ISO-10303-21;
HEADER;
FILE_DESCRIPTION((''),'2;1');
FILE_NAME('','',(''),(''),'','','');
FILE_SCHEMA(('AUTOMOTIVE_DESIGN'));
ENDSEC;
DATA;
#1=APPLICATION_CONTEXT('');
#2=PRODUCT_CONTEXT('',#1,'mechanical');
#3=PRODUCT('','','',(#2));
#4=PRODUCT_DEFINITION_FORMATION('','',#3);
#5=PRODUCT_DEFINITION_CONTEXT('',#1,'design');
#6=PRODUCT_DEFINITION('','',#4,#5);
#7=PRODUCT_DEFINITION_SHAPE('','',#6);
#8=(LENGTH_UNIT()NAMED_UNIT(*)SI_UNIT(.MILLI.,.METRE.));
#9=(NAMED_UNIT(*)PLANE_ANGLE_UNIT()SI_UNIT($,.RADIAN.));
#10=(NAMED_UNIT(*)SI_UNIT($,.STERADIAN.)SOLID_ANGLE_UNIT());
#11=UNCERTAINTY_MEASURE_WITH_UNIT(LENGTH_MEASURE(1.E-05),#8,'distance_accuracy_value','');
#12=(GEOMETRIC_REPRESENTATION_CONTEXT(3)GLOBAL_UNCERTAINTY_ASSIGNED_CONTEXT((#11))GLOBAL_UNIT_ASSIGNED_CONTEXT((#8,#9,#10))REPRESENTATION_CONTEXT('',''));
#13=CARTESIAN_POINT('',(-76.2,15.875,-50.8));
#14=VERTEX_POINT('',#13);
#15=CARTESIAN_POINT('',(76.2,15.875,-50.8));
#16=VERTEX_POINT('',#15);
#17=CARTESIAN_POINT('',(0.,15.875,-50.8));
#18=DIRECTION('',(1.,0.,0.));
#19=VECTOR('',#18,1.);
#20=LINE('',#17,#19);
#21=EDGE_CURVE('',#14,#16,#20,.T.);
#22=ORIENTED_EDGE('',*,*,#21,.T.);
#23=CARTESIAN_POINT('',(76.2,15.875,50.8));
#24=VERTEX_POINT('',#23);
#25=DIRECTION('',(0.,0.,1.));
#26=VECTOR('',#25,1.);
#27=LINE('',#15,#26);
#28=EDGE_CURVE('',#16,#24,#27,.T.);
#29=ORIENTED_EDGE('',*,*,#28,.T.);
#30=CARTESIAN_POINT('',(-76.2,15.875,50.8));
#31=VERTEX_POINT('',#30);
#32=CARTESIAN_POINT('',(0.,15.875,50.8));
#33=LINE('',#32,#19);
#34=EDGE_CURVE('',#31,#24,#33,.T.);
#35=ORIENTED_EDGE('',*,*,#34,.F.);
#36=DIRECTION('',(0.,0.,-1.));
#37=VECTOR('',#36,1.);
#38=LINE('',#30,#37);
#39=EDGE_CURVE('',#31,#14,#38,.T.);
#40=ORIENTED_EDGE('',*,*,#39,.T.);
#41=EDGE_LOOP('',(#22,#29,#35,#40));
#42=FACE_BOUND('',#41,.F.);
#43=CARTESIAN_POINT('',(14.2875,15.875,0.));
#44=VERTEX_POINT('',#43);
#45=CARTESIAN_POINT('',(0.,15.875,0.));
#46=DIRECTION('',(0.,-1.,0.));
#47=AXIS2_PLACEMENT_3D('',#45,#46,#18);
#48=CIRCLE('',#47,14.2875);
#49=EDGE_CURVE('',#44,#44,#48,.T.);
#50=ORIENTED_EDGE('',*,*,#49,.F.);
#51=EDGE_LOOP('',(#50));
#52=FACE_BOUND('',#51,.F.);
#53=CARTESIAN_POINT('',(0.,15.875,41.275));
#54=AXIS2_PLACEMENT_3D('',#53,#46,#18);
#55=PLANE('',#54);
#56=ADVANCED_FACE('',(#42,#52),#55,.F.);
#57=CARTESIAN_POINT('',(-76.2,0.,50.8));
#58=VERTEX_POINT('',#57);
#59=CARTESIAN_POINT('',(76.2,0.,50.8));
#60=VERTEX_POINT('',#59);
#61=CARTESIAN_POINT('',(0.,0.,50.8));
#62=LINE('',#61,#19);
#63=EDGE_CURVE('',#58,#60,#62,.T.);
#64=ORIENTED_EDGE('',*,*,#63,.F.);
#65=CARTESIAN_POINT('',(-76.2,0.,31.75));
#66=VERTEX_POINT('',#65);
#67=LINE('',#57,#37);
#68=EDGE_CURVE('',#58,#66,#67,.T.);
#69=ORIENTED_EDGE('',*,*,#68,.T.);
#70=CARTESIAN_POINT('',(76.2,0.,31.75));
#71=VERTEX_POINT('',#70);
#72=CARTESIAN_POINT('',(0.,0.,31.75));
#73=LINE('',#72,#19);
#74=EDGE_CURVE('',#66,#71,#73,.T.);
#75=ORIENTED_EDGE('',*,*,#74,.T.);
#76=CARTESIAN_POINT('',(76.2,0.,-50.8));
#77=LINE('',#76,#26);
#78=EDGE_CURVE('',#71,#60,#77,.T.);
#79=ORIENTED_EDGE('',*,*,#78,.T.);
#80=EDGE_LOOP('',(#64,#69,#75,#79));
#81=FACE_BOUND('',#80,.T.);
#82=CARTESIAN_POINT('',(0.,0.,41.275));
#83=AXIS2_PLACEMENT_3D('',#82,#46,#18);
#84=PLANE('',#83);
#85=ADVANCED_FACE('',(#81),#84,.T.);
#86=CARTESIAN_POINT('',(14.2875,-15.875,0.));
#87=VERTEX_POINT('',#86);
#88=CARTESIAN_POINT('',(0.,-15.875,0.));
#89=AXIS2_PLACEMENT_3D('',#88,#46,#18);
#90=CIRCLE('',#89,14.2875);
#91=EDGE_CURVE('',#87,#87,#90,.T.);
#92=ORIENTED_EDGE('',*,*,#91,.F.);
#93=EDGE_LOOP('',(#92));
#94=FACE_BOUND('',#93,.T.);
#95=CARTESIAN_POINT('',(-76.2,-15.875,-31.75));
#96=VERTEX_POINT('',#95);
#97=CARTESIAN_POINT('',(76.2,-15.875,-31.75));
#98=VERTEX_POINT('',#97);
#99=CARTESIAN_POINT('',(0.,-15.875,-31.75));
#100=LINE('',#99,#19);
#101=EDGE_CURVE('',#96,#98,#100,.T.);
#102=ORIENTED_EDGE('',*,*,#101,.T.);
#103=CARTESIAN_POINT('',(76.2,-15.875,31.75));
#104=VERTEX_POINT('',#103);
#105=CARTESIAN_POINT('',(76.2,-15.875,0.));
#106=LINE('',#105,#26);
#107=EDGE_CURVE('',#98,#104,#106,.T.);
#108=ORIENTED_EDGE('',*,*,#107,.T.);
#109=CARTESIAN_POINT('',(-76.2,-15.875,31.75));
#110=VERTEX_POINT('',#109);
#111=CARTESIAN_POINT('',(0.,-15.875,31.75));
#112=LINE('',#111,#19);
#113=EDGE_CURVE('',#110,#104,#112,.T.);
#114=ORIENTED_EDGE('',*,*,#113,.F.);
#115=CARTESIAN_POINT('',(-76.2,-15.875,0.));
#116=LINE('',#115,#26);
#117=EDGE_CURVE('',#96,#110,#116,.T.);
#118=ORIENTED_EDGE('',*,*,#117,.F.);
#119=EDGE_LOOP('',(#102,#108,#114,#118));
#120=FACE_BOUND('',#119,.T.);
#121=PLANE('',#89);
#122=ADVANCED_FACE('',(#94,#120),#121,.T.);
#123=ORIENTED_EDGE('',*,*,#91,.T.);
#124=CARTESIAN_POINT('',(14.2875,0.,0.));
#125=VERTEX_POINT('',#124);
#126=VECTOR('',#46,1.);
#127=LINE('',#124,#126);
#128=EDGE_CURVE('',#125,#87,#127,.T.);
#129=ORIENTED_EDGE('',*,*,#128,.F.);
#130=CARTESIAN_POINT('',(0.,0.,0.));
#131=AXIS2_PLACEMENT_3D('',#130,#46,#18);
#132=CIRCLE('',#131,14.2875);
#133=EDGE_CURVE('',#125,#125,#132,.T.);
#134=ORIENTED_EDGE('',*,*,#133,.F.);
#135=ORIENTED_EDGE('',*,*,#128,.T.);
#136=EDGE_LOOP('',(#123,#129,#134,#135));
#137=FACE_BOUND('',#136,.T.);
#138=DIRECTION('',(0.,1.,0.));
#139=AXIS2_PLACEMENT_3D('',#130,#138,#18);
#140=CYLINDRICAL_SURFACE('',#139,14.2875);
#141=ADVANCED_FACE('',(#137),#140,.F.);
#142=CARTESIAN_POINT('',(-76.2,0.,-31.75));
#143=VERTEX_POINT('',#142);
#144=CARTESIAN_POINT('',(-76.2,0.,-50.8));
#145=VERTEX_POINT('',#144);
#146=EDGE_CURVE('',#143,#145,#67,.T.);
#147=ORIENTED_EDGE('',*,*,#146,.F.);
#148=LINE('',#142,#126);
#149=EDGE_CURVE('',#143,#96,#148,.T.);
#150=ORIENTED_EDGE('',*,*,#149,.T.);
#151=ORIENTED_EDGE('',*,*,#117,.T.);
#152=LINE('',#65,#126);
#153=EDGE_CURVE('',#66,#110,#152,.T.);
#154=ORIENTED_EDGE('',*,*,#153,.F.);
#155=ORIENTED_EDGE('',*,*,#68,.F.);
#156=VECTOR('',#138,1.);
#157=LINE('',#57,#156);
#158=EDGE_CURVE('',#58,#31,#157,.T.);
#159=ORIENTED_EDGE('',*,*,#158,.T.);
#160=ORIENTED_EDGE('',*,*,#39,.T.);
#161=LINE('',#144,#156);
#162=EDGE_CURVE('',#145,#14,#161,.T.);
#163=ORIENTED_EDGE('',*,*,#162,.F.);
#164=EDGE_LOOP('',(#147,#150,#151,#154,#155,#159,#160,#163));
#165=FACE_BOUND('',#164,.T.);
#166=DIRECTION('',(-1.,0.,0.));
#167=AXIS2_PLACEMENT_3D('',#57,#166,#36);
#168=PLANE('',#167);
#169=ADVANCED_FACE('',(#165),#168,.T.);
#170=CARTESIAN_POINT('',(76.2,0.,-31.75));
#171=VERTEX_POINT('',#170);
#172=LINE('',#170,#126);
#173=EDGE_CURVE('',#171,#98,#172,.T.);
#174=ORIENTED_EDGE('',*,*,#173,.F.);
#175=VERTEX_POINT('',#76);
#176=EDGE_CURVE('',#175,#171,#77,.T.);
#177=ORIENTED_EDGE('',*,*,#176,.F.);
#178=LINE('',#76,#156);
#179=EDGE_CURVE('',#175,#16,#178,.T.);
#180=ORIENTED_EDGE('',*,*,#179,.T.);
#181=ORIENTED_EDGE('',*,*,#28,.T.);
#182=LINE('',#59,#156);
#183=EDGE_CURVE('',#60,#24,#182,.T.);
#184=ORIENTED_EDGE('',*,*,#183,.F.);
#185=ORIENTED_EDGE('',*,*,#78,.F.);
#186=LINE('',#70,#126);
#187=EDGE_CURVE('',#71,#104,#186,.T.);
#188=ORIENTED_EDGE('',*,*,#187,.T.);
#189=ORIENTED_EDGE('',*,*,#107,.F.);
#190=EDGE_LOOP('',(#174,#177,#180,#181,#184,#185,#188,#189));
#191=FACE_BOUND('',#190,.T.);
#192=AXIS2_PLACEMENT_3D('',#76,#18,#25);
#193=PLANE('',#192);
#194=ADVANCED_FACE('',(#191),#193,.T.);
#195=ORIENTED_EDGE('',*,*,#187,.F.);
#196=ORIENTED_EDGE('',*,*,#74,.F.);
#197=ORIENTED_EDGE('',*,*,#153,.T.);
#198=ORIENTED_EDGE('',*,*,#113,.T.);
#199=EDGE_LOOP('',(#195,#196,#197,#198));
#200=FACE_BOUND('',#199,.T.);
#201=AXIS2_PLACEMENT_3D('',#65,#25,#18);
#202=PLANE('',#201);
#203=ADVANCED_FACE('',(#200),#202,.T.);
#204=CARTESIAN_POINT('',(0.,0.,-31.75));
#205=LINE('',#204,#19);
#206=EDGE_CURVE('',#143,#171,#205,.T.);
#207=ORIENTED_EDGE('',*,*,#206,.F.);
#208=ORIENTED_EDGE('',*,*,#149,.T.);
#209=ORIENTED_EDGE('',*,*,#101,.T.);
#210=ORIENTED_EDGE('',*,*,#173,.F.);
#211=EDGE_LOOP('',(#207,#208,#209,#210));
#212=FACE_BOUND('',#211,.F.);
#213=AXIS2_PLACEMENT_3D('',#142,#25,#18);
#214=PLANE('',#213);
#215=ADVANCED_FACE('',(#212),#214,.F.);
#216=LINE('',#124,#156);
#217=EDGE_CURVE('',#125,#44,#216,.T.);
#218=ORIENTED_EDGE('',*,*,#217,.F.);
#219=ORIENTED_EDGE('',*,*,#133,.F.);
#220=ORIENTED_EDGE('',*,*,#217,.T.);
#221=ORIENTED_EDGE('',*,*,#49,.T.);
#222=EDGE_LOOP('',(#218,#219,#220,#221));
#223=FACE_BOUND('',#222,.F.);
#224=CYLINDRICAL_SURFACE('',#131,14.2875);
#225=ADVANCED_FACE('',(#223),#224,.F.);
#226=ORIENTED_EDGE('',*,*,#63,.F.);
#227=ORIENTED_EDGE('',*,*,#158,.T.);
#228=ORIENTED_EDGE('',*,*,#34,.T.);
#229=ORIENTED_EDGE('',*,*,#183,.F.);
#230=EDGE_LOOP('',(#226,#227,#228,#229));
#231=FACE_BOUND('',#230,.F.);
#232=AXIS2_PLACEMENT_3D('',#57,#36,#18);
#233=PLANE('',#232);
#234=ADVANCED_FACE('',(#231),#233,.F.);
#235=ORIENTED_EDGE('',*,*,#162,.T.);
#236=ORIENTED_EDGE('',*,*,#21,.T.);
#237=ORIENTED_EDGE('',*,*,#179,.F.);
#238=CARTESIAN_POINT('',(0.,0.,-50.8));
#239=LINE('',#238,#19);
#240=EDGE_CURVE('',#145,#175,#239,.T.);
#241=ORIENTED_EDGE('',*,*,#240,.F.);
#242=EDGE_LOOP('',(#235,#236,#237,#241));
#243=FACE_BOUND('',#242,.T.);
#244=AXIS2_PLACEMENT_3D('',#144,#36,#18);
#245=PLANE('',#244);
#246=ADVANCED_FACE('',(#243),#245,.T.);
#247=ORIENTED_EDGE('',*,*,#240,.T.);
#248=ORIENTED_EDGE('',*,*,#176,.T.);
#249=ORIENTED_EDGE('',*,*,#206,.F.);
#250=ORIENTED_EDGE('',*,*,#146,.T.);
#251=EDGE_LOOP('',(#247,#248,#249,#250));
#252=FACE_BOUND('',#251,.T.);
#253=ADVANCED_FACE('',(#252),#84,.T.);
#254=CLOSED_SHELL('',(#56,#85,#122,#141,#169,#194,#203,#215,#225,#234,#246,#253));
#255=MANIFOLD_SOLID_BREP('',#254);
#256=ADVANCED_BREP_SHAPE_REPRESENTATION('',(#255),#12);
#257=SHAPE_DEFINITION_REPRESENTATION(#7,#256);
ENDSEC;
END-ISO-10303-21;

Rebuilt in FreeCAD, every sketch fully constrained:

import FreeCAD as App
import Part
import Sketcher
from FreeCAD import Vector
Q = App.Units.Quantity

doc = App.newDocument("Part")
body = doc.addObject("PartDesign::Body", "Body")

# Sketch on XZ plane
sketch1 = body.newObject("Sketcher::SketchObject", "Sketch")
sketch1.AttachmentSupport = (doc.getObject("XZ_Plane"), [""])
sketch1.MapMode = "FlatFace"
sketch1.addGeometry(Part.LineSegment(Vector(-76.2, 31.75, 0), Vector(-76.2, -31.75, 0)), False)
sketch1.addGeometry(Part.LineSegment(Vector(-76.2, -31.75, 0), Vector(76.2, -31.75, 0)), False)
sketch1.addGeometry(Part.LineSegment(Vector(76.2, -31.75, 0), Vector(76.2, 31.75, 0)), False)
sketch1.addGeometry(Part.LineSegment(Vector(76.2, 31.75, 0), Vector(-76.2, 31.75, 0)), False)
sketch1.addGeometry(Part.Circle(Vector(0, 0, 0), Vector(0, 0, 1), 14.2875), False)
sketch1.addConstraint(Sketcher.Constraint("Coincident", 0, 2, 1, 1))
sketch1.addConstraint(Sketcher.Constraint("Coincident", 1, 2, 2, 1))
sketch1.addConstraint(Sketcher.Constraint("Coincident", 2, 2, 3, 1))
sketch1.addConstraint(Sketcher.Constraint("Coincident", 3, 2, 0, 1))
sketch1.addConstraint(Sketcher.Constraint("Vertical", 0))
sketch1.addConstraint(Sketcher.Constraint("Horizontal", 1))
sketch1.addConstraint(Sketcher.Constraint("Vertical", 2))
sketch1.addConstraint(Sketcher.Constraint("Horizontal", 3))
sketch1.addConstraint(Sketcher.Constraint("Coincident", 4, 3, -1, 1))
sketch1.addConstraint(Sketcher.Constraint("Symmetric", 0, 2, 2, 2, -1, 1))
sketch1.addConstraint(Sketcher.Constraint("DistanceX", 1, 1, 1, 2, Q("6 in")))
sketch1.addConstraint(Sketcher.Constraint("Diameter", 4, Q("1.125 in")))
sketch1.addConstraint(Sketcher.Constraint("DistanceY", 0, 2, 0, 1, Q("2.5 in")))
pad1 = body.newObject("PartDesign::Pad", "Pad")
pad1.Profile = sketch1
pad1.Length = Q("0.625 in")

# Sketch on XZ plane
sketch2 = body.newObject("Sketcher::SketchObject", "Sketch001")
sketch2.AttachmentSupport = (doc.getObject("XZ_Plane"), [""])
sketch2.MapMode = "FlatFace"
sketch2.addGeometry(Part.LineSegment(Vector(-76.2, 50.8, 0), Vector(-76.2, -50.8, 0)), False)
sketch2.addGeometry(Part.LineSegment(Vector(-76.2, -50.8, 0), Vector(76.2, -50.8, 0)), False)
sketch2.addGeometry(Part.LineSegment(Vector(76.2, -50.8, 0), Vector(76.2, 50.8, 0)), False)
sketch2.addGeometry(Part.LineSegment(Vector(76.2, 50.8, 0), Vector(-76.2, 50.8, 0)), False)
sketch2.addGeometry(Part.Circle(Vector(0, 0, 0), Vector(0, 0, 1), 14.2875), False)
sketch2.addConstraint(Sketcher.Constraint("Coincident", 0, 2, 1, 1))
sketch2.addConstraint(Sketcher.Constraint("Coincident", 1, 2, 2, 1))
sketch2.addConstraint(Sketcher.Constraint("Coincident", 2, 2, 3, 1))
sketch2.addConstraint(Sketcher.Constraint("Coincident", 3, 2, 0, 1))
sketch2.addConstraint(Sketcher.Constraint("Vertical", 0))
sketch2.addConstraint(Sketcher.Constraint("Horizontal", 1))
sketch2.addConstraint(Sketcher.Constraint("Vertical", 2))
sketch2.addConstraint(Sketcher.Constraint("Horizontal", 3))
sketch2.addConstraint(Sketcher.Constraint("Coincident", 4, 3, -1, 1))
sketch2.addConstraint(Sketcher.Constraint("Symmetric", 0, 2, 2, 2, -1, 1))
sketch2.addConstraint(Sketcher.Constraint("DistanceX", 1, 1, 1, 2, Q("6 in")))
sketch2.addConstraint(Sketcher.Constraint("DistanceY", 0, 2, 0, 1, Q("4 in")))
sketch2.addConstraint(Sketcher.Constraint("Diameter", 4, Q("1.125 in")))
pad2 = body.newObject("PartDesign::Pad", "Pad001")
pad2.Profile = sketch2
pad2.Length = Q("0.625 in")
pad2.Reversed = True

doc.recompute()
